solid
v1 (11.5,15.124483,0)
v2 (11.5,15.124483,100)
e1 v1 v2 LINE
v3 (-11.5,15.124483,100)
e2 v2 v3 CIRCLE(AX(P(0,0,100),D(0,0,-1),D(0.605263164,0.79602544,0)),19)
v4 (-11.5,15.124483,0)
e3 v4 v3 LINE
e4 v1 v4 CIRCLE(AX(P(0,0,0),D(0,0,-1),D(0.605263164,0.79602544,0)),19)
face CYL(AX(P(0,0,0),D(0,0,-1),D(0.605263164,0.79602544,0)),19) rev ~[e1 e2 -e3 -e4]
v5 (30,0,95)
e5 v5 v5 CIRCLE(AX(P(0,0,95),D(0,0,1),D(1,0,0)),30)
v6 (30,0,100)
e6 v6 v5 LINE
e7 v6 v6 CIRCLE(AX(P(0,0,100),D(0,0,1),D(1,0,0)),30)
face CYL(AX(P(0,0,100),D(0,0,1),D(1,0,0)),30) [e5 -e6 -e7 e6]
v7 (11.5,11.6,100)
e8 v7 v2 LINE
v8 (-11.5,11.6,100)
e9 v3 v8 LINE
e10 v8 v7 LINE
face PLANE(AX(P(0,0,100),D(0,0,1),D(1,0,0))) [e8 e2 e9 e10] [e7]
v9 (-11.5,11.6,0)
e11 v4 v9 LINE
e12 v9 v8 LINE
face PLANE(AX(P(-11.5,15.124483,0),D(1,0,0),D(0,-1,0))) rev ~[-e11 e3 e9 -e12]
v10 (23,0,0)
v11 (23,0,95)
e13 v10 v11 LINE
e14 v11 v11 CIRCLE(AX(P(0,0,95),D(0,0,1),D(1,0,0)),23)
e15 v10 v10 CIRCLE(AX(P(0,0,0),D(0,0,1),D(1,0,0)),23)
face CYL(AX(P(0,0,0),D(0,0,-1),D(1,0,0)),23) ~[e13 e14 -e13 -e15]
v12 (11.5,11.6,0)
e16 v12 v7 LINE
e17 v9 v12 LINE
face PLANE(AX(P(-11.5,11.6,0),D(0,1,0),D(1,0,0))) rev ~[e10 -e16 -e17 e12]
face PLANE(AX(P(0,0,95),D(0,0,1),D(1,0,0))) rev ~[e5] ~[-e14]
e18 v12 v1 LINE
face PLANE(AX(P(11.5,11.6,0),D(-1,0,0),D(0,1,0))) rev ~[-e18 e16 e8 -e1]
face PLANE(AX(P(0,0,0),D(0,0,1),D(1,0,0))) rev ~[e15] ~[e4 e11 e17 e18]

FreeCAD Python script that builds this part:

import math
import FreeCAD as App
import Part
import Sketcher
from FreeCAD import Vector
Q = App.Units.Quantity

doc = App.newDocument("Part")
body = doc.addObject("PartDesign::Body", "Body")

# Sketch on XY plane
sketch1 = doc.addObject("Sketcher::SketchObject", "Sketch")
body.addObject(sketch1)
sketch1.AttachmentSupport = (doc.XY_Plane, [""])
sketch1.MapMode = "FlatFace"
sketch1.addGeometry([
    Part.Circle(Vector(0, 0, 0), Vector(0, 0, 1), 23),  # 0
    Part.LineSegment(Vector(11.5, 11.6, 0), Vector(11.5, 15.1, 0)),  # 1
    Part.ArcOfCircle(Part.Circle(Vector(0, 0, 0), Vector(0, 0, 1), 19), math.radians(127), math.radians(413)),  # 2
    Part.LineSegment(Vector(-11.5, 15.1, 0), Vector(-11.5, 11.6, 0)),  # 3
    Part.LineSegment(Vector(-11.5, 11.6, 0), Vector(11.5, 11.6, 0)),  # 4
], False)
sketch1.addConstraint([
    Sketcher.Constraint("Coincident", 1, 2, 2, 2),
    Sketcher.Constraint("Coincident", 2, 1, 3, 1),
    Sketcher.Constraint("Coincident", 3, 2, 4, 1),
    Sketcher.Constraint("Coincident", 4, 2, 1, 1),
    Sketcher.Constraint("Vertical", 1),
    Sketcher.Constraint("Vertical", 3),
    Sketcher.Constraint("Horizontal", 4),
    Sketcher.Constraint("Coincident", 0, 3, -1, 1),
    Sketcher.Constraint("Coincident", 2, 3, -1, 1),
    Sketcher.Constraint("Horizontal", 1, 2, 2, 1),
    Sketcher.Constraint("Diameter", 0, Q("46 mm")),
    Sketcher.Constraint("Radius", 2, Q("19 mm")),
    Sketcher.Constraint("DistanceX", 4, 1, 4, 2, Q("23 mm")),
    Sketcher.Constraint("DistanceY", -1, 1, 3, 2, Q("11.6 mm")),
])
pad1 = doc.addObject("PartDesign::Pad", "Pad")
body.addObject(pad1)
pad1.Profile = sketch1
pad1.Length = 100

# Sketch on XY plane
sketch2 = doc.addObject("Sketcher::SketchObject", "Sketch001")
body.addObject(sketch2)
sketch2.AttachmentSupport = (doc.XY_Plane, [""])
sketch2.MapMode = "FlatFace"
sketch2.AttachmentOffset = App.Placement(Vector(0, 0, 100), App.Rotation())
sketch2.addGeometry([
    Part.Circle(Vector(0, 0, 0), Vector(0, 0, 1), 30),
    Part.Circle(Vector(0, 0, 0), Vector(0, 0, 1), 23),
], False)
sketch2.addConstraint([
    Sketcher.Constraint("Coincident", 0, 3, -1, 1),
    Sketcher.Constraint("Coincident", 1, 3, -1, 1),
    Sketcher.Constraint("Diameter", 0, Q("60 mm")),
    Sketcher.Constraint("Diameter", 1, Q("46 mm")),
])
pad2 = doc.addObject("PartDesign::Pad", "Pad001")
body.addObject(pad2)
pad2.Profile = sketch2
pad2.Length = 5
pad2.Reversed = True

doc.recompute()
